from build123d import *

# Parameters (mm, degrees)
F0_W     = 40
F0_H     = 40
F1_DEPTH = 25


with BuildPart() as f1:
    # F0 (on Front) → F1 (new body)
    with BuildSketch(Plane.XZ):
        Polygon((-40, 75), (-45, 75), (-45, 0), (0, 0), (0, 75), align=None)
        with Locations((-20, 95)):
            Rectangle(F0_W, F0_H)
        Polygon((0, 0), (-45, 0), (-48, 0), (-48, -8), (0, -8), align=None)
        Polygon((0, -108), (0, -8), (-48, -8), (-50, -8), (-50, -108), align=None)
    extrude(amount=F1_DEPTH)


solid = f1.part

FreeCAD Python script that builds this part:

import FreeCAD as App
import Part
import Sketcher

doc = App.newDocument("Part")
body = doc.addObject("PartDesign::Body", "Body")

# Sketch on XZ plane
sketch1 = body.newObject("Sketcher::SketchObject", "Sketch")
sketch1.AttachmentSupport = (doc.getObject("XZ_Plane"), [""])
sketch1.MapMode = "FlatFace"
sketch1.addGeometry([
    Part.LineSegment(App.Vector(-45, 75, 0), App.Vector(-45, 0, 0)),  # 0
    Part.LineSegment(App.Vector(-45, 0, 0), App.Vector(-48, 0, 0)),  # 1
    Part.LineSegment(App.Vector(-48, 0, 0), App.Vector(-48, -8, 0)),  # 2
    Part.LineSegment(App.Vector(-48, -8, 0), App.Vector(-50, -8, 0)),  # 3
    Part.LineSegment(App.Vector(-50, -8, 0), App.Vector(-50, -108, 0)),  # 4
    Part.LineSegment(App.Vector(-50, -108, 0), App.Vector(0, -108, 0)),  # 5
    Part.LineSegment(App.Vector(0, -108, 0), App.Vector(0, 115, 0)),  # 6
    Part.LineSegment(App.Vector(0, 115, 0), App.Vector(-40, 115, 0)),  # 7
    Part.LineSegment(App.Vector(-40, 115, 0), App.Vector(-40, 75, 0)),  # 8
    Part.LineSegment(App.Vector(-40, 75, 0), App.Vector(-45, 75, 0)),  # 9
], False)
sketch1.addConstraint([
    Sketcher.Constraint("Coincident", 0, 2, 1, 1),
    Sketcher.Constraint("Coincident", 1, 2, 2, 1),
    Sketcher.Constraint("Coincident", 2, 2, 3, 1),
    Sketcher.Constraint("Coincident", 3, 2, 4, 1),
    Sketcher.Constraint("Coincident", 4, 2, 5, 1),
    Sketcher.Constraint("Coincident", 5, 2, 6, 1),
    Sketcher.Constraint("Coincident", 6, 2, 7, 1),
    Sketcher.Constraint("Coincident", 7, 2, 8, 1),
    Sketcher.Constraint("Coincident", 8, 2, 9, 1),
    Sketcher.Constraint("Coincident", 9, 2, 0, 1),
    Sketcher.Constraint("Vertical", 0),
    Sketcher.Constraint("Horizontal", 1),
    Sketcher.Constraint("Vertical", 2),
    Sketcher.Constraint("Horizontal", 3),
    Sketcher.Constraint("Vertical", 4),
    Sketcher.Constraint("Horizontal", 5),
    Sketcher.Constraint("Vertical", 6),
    Sketcher.Constraint("Horizontal", 7),
    Sketcher.Constraint("Vertical", 8),
    Sketcher.Constraint("Horizontal", 9),
    Sketcher.Constraint("PointOnObject", 0, 2, -1),
    Sketcher.Constraint("PointOnObject", 5, 2, -2),
    Sketcher.Constraint("Equal", 7, 8),
    Sketcher.Constraint("DistanceX", 1, 2, 1, 1, 3.0),
    Sketcher.Constraint("DistanceX", 3, 2, 3, 1, 2.0),
    Sketcher.Constraint("DistanceX", 5, 1, 5, 2, 50.0),
    Sketcher.Constraint("DistanceX", 7, 2, 7, 1, 40.0),
    Sketcher.Constraint("DistanceY", 0, 2, 0, 1, 75.0),
    Sketcher.Constraint("DistanceY", 2, 2, 2, 1, 8.0),
    Sketcher.Constraint("DistanceY", 4, 2, 4, 1, 100.0),
])
pad1 = body.newObject("PartDesign::Pad", "Pad")
pad1.Profile = sketch1
pad1.Length = 25

doc.recompute()
